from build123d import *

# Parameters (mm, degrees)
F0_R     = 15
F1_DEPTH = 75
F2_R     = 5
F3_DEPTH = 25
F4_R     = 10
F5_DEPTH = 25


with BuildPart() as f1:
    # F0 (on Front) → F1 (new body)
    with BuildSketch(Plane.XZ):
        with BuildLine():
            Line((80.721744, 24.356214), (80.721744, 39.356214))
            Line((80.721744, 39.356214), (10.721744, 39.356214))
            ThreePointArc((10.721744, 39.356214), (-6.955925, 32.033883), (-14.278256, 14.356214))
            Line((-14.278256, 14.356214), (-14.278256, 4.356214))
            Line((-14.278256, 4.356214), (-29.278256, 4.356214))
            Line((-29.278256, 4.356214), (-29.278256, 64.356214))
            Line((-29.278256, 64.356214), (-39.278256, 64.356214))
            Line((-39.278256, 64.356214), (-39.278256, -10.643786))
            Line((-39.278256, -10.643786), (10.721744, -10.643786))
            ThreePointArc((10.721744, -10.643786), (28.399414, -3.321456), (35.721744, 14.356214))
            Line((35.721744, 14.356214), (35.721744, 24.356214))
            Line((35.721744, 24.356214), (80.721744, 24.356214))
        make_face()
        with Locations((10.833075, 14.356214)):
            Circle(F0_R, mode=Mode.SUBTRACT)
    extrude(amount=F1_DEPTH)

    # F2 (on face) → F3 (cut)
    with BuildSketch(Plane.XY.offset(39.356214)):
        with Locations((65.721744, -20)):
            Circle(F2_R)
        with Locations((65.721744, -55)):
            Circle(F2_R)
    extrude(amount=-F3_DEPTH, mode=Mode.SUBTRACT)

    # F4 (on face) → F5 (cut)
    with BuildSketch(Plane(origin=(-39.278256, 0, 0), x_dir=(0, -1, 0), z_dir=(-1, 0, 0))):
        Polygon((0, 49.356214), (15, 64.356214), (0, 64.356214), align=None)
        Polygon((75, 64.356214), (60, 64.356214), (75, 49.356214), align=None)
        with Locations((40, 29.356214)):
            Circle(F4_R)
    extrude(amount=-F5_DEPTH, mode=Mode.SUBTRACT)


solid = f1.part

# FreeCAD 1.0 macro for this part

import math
import FreeCAD as App
import Part
import Sketcher

V = App.Vector

doc = App.newDocument("Part")
body = doc.addObject("PartDesign::Body", "Body")

# Sketch on XZ plane
sketch1 = doc.addObject("Sketcher::SketchObject", "Sketch")
body.addObject(sketch1)
sketch1.AttachmentSupport = (doc.XZ_Plane, [""])
sketch1.MapMode = "FlatFace"
sketch1.addGeometry([
    Part.LineSegment(V(81, 24, 0), V(81, 39, 0)),  # 0
    Part.LineSegment(V(81, 39, 0), V(11, 39, 0)),  # 1
    Part.ArcOfCircle(Part.Circle(V(11, 14, 0), V(0, 0, 1), 25), math.radians(90), math.radians(180)),  # 2
    Part.LineSegment(V(-14, 14, 0), V(-14, 4, 0)),  # 3
    Part.LineSegment(V(-14, 4, 0), V(-29, 4, 0)),  # 4
    Part.LineSegment(V(-29, 4, 0), V(-29, 64, 0)),  # 5
    Part.LineSegment(V(-29, 64, 0), V(-39, 64, 0)),  # 6
    Part.LineSegment(V(-39, 64, 0), V(-39, -11, 0)),  # 7
    Part.LineSegment(V(-39, -11, 0), V(11, -11, 0)),  # 8
    Part.ArcOfCircle(Part.Circle(V(11, 14, 0), V(0, 0, 1), 25), math.radians(-90), math.radians(0)),  # 9
    Part.LineSegment(V(36, 14, 0), V(36, 24, 0)),  # 10
    Part.LineSegment(V(36, 24, 0), V(81, 24, 0)),  # 11
    Part.Circle(V(11, 14, 0), V(0, 0, 1), 15),  # 12
], False)
sketch1.addConstraint([
    Sketcher.Constraint("Coincident", 0, 2, 1, 1),
    Sketcher.Constraint("Tangent", 1, 2, 2, 1),
    Sketcher.Constraint("Tangent", 2, 2, 3, 1),
    Sketcher.Constraint("Coincident", 3, 2, 4, 1),
    Sketcher.Constraint("Coincident", 4, 2, 5, 1),
    Sketcher.Constraint("Coincident", 5, 2, 6, 1),
    Sketcher.Constraint("Coincident", 6, 2, 7, 1),
    Sketcher.Constraint("Coincident", 7, 2, 8, 1),
    Sketcher.Constraint("Tangent", 8, 2, 9, 1),
    Sketcher.Constraint("Tangent", 9, 2, 10, 1),
    Sketcher.Constraint("Coincident", 10, 2, 11, 1),
    Sketcher.Constraint("Coincident", 11, 2, 0, 1),
    Sketcher.Constraint("Vertical", 0),
    Sketcher.Constraint("Horizontal", 1),
    Sketcher.Constraint("Vertical", 3),
    Sketcher.Constraint("Horizontal", 4),
    Sketcher.Constraint("Vertical", 5),
    Sketcher.Constraint("Horizontal", 6),
    Sketcher.Constraint("Vertical", 7),
    Sketcher.Constraint("Horizontal", 8),
    Sketcher.Constraint("Vertical", 10),
    Sketcher.Constraint("Horizontal", 11),
    Sketcher.Constraint("Coincident", 9, 3, 2, 3),
    Sketcher.Constraint("Horizontal", 9, 3, 12, 3),
    Sketcher.Constraint("Equal", 4, 0),
    Sketcher.Constraint("Equal", 6, 3),
    Sketcher.Constraint("Equal", 3, 10),
    Sketcher.Constraint("Diameter", 12, 30.0),
    Sketcher.Constraint("Radius", 2, 25.000002),
    Sketcher.Constraint("Radius", 9, 24.999998),
    Sketcher.Constraint("DistanceX", 1, 2, 1, 1, 70.0),
    Sketcher.Constraint("DistanceX", 4, 2, 4, 1, 15.0),
    Sketcher.Constraint("DistanceY", 5, 1, 5, 2, 60.0),
    Sketcher.Constraint("DistanceX", 2, 3, 12, 3, 0.111329),
    Sketcher.Constraint("DistanceX", -1, 1, 2, 3, 10.721746),
    Sketcher.Constraint("DistanceY", -1, 1, 2, 3, 14.356212),
])
pad1 = doc.addObject("PartDesign::Pad", "Pad")
body.addObject(pad1)
pad1.Profile = sketch1
pad1.Length = 75

# Sketch on XY plane
sketch2 = doc.addObject("Sketcher::SketchObject", "Sketch001")
body.addObject(sketch2)
sketch2.AttachmentSupport = (doc.XY_Plane, [""])
sketch2.MapMode = "FlatFace"
sketch2.AttachmentOffset = App.Placement(V(0, 0, 39.356214), App.Rotation())
sketch2.addGeometry([
    Part.Circle(V(66, -20, 0), V(0, 0, 1), 5),
    Part.Circle(V(66, -55, 0), V(0, 0, 1), 5),
], False)
sketch2.addConstraint([
    Sketcher.Constraint("Equal", 0, 1),
    Sketcher.Constraint("Vertical", 0, 3, 1, 3),
    Sketcher.Constraint("Diameter", 0, 10.0),
    Sketcher.Constraint("DistanceY", 0, 3, -1, 1, 20.0),
    Sketcher.Constraint("DistanceY", 1, 3, -1, 1, 55.0),
    Sketcher.Constraint("DistanceX", -1, 1, 0, 3, 65.721744),
])
pocket1 = doc.addObject("PartDesign::Pocket", "Pocket")
body.addObject(pocket1)
pocket1.Profile = sketch2
pocket1.Length = 25

# Sketch on YZ plane
sketch3 = doc.addObject("Sketcher::SketchObject", "Sketch002")
body.addObject(sketch3)
sketch3.AttachmentSupport = (doc.YZ_Plane, [""])
sketch3.MapMode = "FlatFace"
sketch3.AttachmentOffset = App.Placement(V(0, 0, -39.278256), App.Rotation())
sketch3.addGeometry([
    Part.LineSegment(V(0, 49, 0), V(-15, 64, 0)),  # 0
    Part.LineSegment(V(-15, 64, 0), V(0, 64, 0)),  # 1
    Part.LineSegment(V(0, 64, 0), V(0, 49, 0)),  # 2
    Part.LineSegment(V(-75, 64, 0), V(-60, 64, 0)),  # 3
    Part.LineSegment(V(-60, 64, 0), V(-75, 49, 0)),  # 4
    Part.LineSegment(V(-75, 49, 0), V(-75, 64, 0)),  # 5
    Part.Circle(V(-40, 29, 0), V(0, 0, 1), 10),  # 6
], False)
sketch3.addConstraint([
    Sketcher.Constraint("Coincident", 0, 2, 1, 1),
    Sketcher.Constraint("Coincident", 1, 2, 2, 1),
    Sketcher.Constraint("Coincident", 2, 2, 0, 1),
    Sketcher.Constraint("Coincident", 3, 2, 4, 1),
    Sketcher.Constraint("Coincident", 4, 2, 5, 1),
    Sketcher.Constraint("Coincident", 5, 2, 3, 1),
    Sketcher.Constraint("Horizontal", 1),
    Sketcher.Constraint("Vertical", 2),
    Sketcher.Constraint("Horizontal", 3),
    Sketcher.Constraint("Vertical", 5),
    Sketcher.Constraint("PointOnObject", 1, 2, -2),
    Sketcher.Constraint("Perpendicular", 0, 4),
    Sketcher.Constraint("Horizontal", 1, 2, 3, 2),
    Sketcher.Constraint("Horizontal", 2, 2, 4, 2),
    Sketcher.Constraint("Equal", 1, 3),
    Sketcher.Constraint("Diameter", 6, 20.0),
    Sketcher.Constraint("DistanceX", 1, 1, 1, 2, 15.0),
    Sketcher.Constraint("DistanceX", 6, 3, -1, 1, 40.0),
    Sketcher.Constraint("DistanceX", 3, 2, -1, 1, 60.0),
    Sketcher.Constraint("DistanceY", 6, 3, 0, 2, 35.0),
    Sketcher.Constraint("DistanceY", -1, 1, 6, 3, 29.356214),
])
pocket2 = doc.addObject("PartDesign::Pocket", "Pocket001")
body.addObject(pocket2)
pocket2.Profile = sketch3
pocket2.Length = 25
pocket2.Reversed = True

doc.recompute()
